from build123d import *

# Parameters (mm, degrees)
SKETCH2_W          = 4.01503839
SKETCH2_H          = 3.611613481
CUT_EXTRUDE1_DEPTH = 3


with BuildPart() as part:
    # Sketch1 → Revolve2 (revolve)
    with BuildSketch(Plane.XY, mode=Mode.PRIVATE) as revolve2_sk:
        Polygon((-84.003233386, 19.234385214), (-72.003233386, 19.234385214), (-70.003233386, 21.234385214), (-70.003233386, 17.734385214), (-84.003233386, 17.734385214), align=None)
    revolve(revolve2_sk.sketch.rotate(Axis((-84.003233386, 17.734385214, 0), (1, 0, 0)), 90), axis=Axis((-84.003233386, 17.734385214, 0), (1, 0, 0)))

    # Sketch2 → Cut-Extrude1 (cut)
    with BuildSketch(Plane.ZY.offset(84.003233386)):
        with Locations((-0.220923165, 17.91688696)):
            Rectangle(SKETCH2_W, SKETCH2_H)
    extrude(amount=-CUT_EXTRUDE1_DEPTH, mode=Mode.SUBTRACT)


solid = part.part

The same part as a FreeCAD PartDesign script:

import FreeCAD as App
import Part
import Sketcher
Q = App.Units.Quantity

doc = App.newDocument("Part")
body = doc.addObject("PartDesign::Body", "Body")

# Sketch on XY plane
sketch1 = doc.addObject("Sketcher::SketchObject", "Sketch")
body.addObject(sketch1)
sketch1.AttachmentSupport = (doc.XY_Plane, [""])
sketch1.MapMode = "FlatFace"
sketch1.addGeometry([
    Part.LineSegment(App.Vector(-72.003233, 19.234385, 0), App.Vector(-84.003233, 19.234385, 0)),  # 0
    Part.LineSegment(App.Vector(-84.003233, 19.234385, 0), App.Vector(-84.003233, 17.734385, 0)),  # 1
    Part.LineSegment(App.Vector(-84.003233, 17.734385, 0), App.Vector(-70.003233, 17.734385, 0)),  # 2
    Part.LineSegment(App.Vector(-70.003233, 17.734385, 0), App.Vector(-70.003233, 21.234385, 0)),  # 3
    Part.LineSegment(App.Vector(-70.003233, 21.234385, 0), App.Vector(-72.003233, 19.234385, 0)),  # 4
], False)
sketch1.addGeometry(Part.LineSegment(App.Vector(-84.003233, 17.734385, 0), App.Vector(-70.003233, 17.734385, 0)), True)  # axis
sketch1.addConstraint([
    Sketcher.Constraint("Coincident", 0, 2, 1, 1),
    Sketcher.Constraint("Coincident", 1, 2, 2, 1),
    Sketcher.Constraint("Coincident", 2, 2, 3, 1),
    Sketcher.Constraint("Coincident", 3, 2, 4, 1),
    Sketcher.Constraint("Coincident", 4, 2, 0, 1),
    Sketcher.Constraint("Horizontal", 0),
    Sketcher.Constraint("Vertical", 1),
    Sketcher.Constraint("Horizontal", 2),
    Sketcher.Constraint("Vertical", 3),
    Sketcher.Constraint("Horizontal", 5),
    Sketcher.Constraint("Coincident", 5, 1, 1, 2),
    Sketcher.Constraint("Vertical", 3, 2, 5, 2),
    Sketcher.Constraint("DistanceX", 0, 2, 0, 1, Q("12 mm")),
    Sketcher.Constraint("DistanceX", 2, 1, 2, 2, Q("14 mm")),
    Sketcher.Constraint("Angle", 4, Q("-135 deg")),
    Sketcher.Constraint("DistanceY", 1, 2, 1, 1, Q("1.5 mm")),
    Sketcher.Constraint("DistanceX", 0, 2, -1, 1, Q("84.003233 mm")),
    Sketcher.Constraint("DistanceY", -1, 1, 0, 2, Q("19.234385 mm")),
])
revolution = doc.addObject("PartDesign::Revolution", "Revolution")
body.addObject(revolution)
revolution.Profile = sketch1
revolution.ReferenceAxis = (sketch1, ["Axis0"])
revolution.Angle = 360

# Sketch on YZ plane
sketch2 = doc.addObject("Sketcher::SketchObject", "Sketch001")
body.addObject(sketch2)
sketch2.AttachmentSupport = (doc.YZ_Plane, [""])
sketch2.MapMode = "FlatFace"
sketch2.AttachmentOffset = App.Placement(App.Vector(0, 0, -84.003233), App.Rotation())
sketch2.addGeometry([
    Part.LineSegment(App.Vector(19.722694, -2.228442, 0), App.Vector(16.11108, -2.228442, 0)),
    Part.LineSegment(App.Vector(16.11108, -2.228442, 0), App.Vector(16.11108, 1.786596, 0)),
    Part.LineSegment(App.Vector(16.11108, 1.786596, 0), App.Vector(19.722694, 1.786596, 0)),
    Part.LineSegment(App.Vector(19.722694, 1.786596, 0), App.Vector(19.722694, -2.228442, 0)),
], False)
sketch2.addConstraint([
    Sketcher.Constraint("Coincident", 0, 2, 1, 1),
    Sketcher.Constraint("Coincident", 1, 2, 2, 1),
    Sketcher.Constraint("Coincident", 2, 2, 3, 1),
    Sketcher.Constraint("Coincident", 3, 2, 0, 1),
    Sketcher.Constraint("Horizontal", 0),
    Sketcher.Constraint("Vertical", 1),
    Sketcher.Constraint("Horizontal", 2),
    Sketcher.Constraint("Vertical", 3),
    Sketcher.Constraint("DistanceY", 1, 1, 1, 2, Q("4.015038 mm")),
    Sketcher.Constraint("DistanceX", 0, 2, 0, 1, Q("3.611613 mm")),
    Sketcher.Constraint("DistanceX", -1, 1, 0, 2, Q("16.11108 mm")),
    Sketcher.Constraint("DistanceY", 0, 2, -1, 1, Q("2.228442 mm")),
])
pocket1 = doc.addObject("PartDesign::Pocket", "Pocket")
body.addObject(pocket1)
pocket1.Profile = sketch2
pocket1.Length = 3
pocket1.Reversed = True

doc.recompute()
